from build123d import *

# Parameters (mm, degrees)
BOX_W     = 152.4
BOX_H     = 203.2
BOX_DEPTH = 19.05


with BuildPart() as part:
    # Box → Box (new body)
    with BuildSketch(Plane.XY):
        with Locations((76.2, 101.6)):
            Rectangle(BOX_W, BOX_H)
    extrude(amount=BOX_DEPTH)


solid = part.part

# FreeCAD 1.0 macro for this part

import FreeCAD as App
import Part
import Sketcher
from FreeCAD import Vector
Q = App.Units.Quantity

doc = App.newDocument("Part")
params = doc.addObject("Spreadsheet::Sheet", "Params")
for row, (alias, value) in enumerate([
    ("sketch1_width", "6 in"),
    ("sketch1_height", "8 in"),
    ("pad1_length", "0.75 in"),
], start=1):
    params.set(f"A{row}", alias)
    params.set(f"B{row}", "=" + value)
    params.setAlias(f"B{row}", alias)

body = doc.addObject("PartDesign::Body", "Body")

sketch1 = body.newObject("Sketcher::SketchObject", "Sketch")
sketch1.AttachmentSupport = (doc.getObject("XY_Plane"), [""])
sketch1.MapMode = "FlatFace"
sketch1.addGeometry(Part.LineSegment(Vector(0, 203, 0), Vector(0, 0, 0)), False)
sketch1.addGeometry(Part.LineSegment(Vector(0, 0, 0), Vector(152, 0, 0)), False)
sketch1.addGeometry(Part.LineSegment(Vector(152, 0, 0), Vector(152, 203, 0)), False)
sketch1.addGeometry(Part.LineSegment(Vector(152, 203, 0), Vector(0, 203, 0)), False)
sketch1.addConstraint(Sketcher.Constraint("Coincident", 0, 2, 1, 1))
sketch1.addConstraint(Sketcher.Constraint("Coincident", 1, 2, 2, 1))
sketch1.addConstraint(Sketcher.Constraint("Coincident", 2, 2, 3, 1))
sketch1.addConstraint(Sketcher.Constraint("Coincident", 3, 2, 0, 1))
sketch1.addConstraint(Sketcher.Constraint("Vertical", 0))
sketch1.addConstraint(Sketcher.Constraint("Horizontal", 1))
sketch1.addConstraint(Sketcher.Constraint("Vertical", 2))
sketch1.addConstraint(Sketcher.Constraint("Horizontal", 3))
sketch1.addConstraint(Sketcher.Constraint("Coincident", 0, 2, -1, 1))
sketch1.addConstraint(Sketcher.Constraint("DistanceX", 1, 1, 1, 2, Q("6 in")))
sketch1.addConstraint(Sketcher.Constraint("DistanceY", 0, 2, 0, 1, Q("8 in")))
sketch1.setExpression("Constraints[9]", "Params.sketch1_width")
sketch1.setExpression("Constraints[10]", "Params.sketch1_height")
pad1 = body.newObject("PartDesign::Pad", "Pad")
pad1.Profile = sketch1
pad1.setExpression("Length", "Params.pad1_length")

doc.recompute()
